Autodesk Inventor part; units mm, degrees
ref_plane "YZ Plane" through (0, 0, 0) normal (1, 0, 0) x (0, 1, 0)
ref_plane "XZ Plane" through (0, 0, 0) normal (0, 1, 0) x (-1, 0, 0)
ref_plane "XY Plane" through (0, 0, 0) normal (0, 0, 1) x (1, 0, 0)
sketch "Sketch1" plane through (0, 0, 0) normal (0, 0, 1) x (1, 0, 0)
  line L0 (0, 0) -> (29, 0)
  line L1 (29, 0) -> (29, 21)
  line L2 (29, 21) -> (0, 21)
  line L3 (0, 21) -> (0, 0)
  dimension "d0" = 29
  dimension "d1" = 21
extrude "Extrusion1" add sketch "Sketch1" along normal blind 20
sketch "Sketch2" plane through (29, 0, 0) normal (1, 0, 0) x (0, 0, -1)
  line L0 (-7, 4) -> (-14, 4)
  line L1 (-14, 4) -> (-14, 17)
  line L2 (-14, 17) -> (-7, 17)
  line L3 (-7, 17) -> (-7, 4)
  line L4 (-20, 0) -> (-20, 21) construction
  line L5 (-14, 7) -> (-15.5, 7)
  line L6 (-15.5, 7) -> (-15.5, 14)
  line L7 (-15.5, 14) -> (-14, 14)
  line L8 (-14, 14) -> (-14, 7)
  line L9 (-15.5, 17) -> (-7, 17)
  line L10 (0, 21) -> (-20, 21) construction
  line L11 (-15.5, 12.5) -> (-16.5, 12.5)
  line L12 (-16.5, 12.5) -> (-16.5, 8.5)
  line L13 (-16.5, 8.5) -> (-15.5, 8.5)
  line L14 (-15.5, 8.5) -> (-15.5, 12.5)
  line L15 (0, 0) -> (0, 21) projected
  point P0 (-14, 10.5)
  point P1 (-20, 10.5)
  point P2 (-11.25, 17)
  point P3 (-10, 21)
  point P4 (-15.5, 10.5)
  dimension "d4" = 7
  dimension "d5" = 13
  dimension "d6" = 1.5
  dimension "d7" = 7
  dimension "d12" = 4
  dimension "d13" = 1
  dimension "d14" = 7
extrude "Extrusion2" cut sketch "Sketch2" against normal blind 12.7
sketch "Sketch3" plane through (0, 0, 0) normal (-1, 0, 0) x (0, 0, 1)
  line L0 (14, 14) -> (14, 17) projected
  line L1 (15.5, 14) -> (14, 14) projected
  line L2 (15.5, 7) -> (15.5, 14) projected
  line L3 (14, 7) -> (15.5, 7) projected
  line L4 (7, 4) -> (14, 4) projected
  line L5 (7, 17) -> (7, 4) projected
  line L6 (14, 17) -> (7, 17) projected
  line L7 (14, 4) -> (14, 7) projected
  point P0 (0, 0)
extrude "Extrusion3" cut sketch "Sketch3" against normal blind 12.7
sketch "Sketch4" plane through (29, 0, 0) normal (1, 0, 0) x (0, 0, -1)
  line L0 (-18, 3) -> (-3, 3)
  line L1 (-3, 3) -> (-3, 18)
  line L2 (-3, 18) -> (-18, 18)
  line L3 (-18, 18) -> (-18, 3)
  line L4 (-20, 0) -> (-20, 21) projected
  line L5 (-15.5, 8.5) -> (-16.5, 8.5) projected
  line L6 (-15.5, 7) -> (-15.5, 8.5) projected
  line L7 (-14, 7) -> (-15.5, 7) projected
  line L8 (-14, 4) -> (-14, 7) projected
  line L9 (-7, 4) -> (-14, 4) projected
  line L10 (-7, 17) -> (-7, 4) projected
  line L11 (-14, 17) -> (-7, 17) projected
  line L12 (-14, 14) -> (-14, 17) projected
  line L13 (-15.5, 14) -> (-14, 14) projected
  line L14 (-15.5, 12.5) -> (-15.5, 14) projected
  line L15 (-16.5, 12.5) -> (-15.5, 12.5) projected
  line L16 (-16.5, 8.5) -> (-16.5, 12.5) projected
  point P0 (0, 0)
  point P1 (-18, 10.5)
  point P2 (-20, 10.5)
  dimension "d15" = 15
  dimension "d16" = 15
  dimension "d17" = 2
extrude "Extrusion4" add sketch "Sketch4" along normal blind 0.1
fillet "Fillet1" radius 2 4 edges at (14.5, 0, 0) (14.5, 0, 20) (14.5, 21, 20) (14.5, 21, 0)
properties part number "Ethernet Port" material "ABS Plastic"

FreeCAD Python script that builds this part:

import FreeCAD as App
import Part
import Sketcher

V = App.Vector


def edges_at(feature, points):
    """Names of the edges that pass closest to the given points."""
    edges = feature.Shape.Edges
    near = lambda p: min(range(len(edges)), key=lambda i: edges[i].distToShape(Part.Vertex(*p))[0])
    return sorted({f"Edge{near(p) + 1}" for p in points})


def add_polygon(sketch, points):
    """Adds a closed chain of lines whose ends are joined by coincident constraints."""
    first, n = sketch.GeometryCount, len(points)
    for a, b in zip(points, points[1:] + points[:1]):
        sketch.addGeometry(Part.LineSegment(App.Vector(*a, 0), App.Vector(*b, 0)), False)
    for i in range(n):
        sketch.addConstraint(Sketcher.Constraint("Coincident", first + i, 2, first + (i + 1) % n, 1))

doc = App.newDocument("Part")
params = doc.addObject("Spreadsheet::Sheet", "Params")
for row, (alias, value) in enumerate([
    ("sketch1_width", "29 mm"),
    ("sketch1_height", "21 mm"),
    ("pad1_length", "20 mm"),
    ("sketch2_width", "13 mm"),
    ("sketch2_width2", "4 mm"),
    ("sketch2_height", "7 mm"),
    ("sketch2_height2", "1 mm"),
    ("sketch2_width3", "1.5 mm"),
    ("pocket1_length", "12.7 mm"),
    ("sketch3_width", "3 mm"),
    ("sketch3_width2", "13 mm"),
    ("sketch3_height", "1.5 mm"),
    ("pocket2_length", "12.7 mm"),
    ("sketch4_width", "15 mm"),
    ("sketch4_width2", "4 mm"),
    ("sketch4_width3", "3 mm"),
    ("sketch4_width4", "13 mm"),
    ("sketch4_height", "1 mm"),
    ("pad2_length", "0.1 mm"),
    ("fillet_radius", "2 mm"),
], start=1):
    params.set(f"A{row}", alias)
    params.set(f"B{row}", "=" + value)
    params.setAlias(f"B{row}", alias)

body = doc.addObject("PartDesign::Body", "Body")

# Sketch on XY plane
sketch1 = body.newObject("Sketcher::SketchObject", "Sketch")
sketch1.AttachmentSupport = (doc.getObject("XY_Plane"), [""])
sketch1.MapMode = "FlatFace"
add_polygon(sketch1, [(0, 21), (0, 0), (29, 0), (29, 21)])  # lines 0-3
sketch1.addConstraint([
    Sketcher.Constraint("Vertical", 0),
    Sketcher.Constraint("Horizontal", 1),
    Sketcher.Constraint("Vertical", 2),
    Sketcher.Constraint("Horizontal", 3),
    Sketcher.Constraint("Coincident", 0, 2, -1, 1),
    Sketcher.Constraint("DistanceX", 1, 1, 1, 2, 29.0),
    Sketcher.Constraint("DistanceY", 0, 2, 0, 1, 21.0),
])
sketch1.setExpression("Constraints[9]", "Params.sketch1_width")
sketch1.setExpression("Constraints[10]", "Params.sketch1_height")
pad1 = body.newObject("PartDesign::Pad", "Pad")
pad1.Profile = sketch1
pad1.setExpression("Length", "Params.pad1_length")

# Sketch on YZ plane
sketch2 = body.newObject("Sketcher::SketchObject", "Sketch001")
sketch2.AttachmentSupport = (doc.getObject("YZ_Plane"), [""])
sketch2.MapMode = "FlatFace"
sketch2.AttachmentOffset = App.Placement(V(0, 0, 29), App.Rotation())
add_polygon(sketch2, [(4, 14), (4, 7), (17, 7), (17, 14), (14, 14), (14, 15.5), (12.5, 15.5), (12.5, 16.5), (8.5, 16.5), (8.5, 15.5), (7, 15.5), (7, 14)])  # lines 0-11
sketch2.addConstraint([
    Sketcher.Constraint("Vertical", 0),
    Sketcher.Constraint("Horizontal", 1),
    Sketcher.Constraint("Vertical", 2),
    Sketcher.Constraint("Horizontal", 3),
    Sketcher.Constraint("Vertical", 4),
    Sketcher.Constraint("Horizontal", 5),
    Sketcher.Constraint("Vertical", 6),
    Sketcher.Constraint("Horizontal", 7),
    Sketcher.Constraint("Vertical", 8),
    Sketcher.Constraint("Horizontal", 9),
    Sketcher.Constraint("Vertical", 10),
    Sketcher.Constraint("Horizontal", 11),
    Sketcher.Constraint("Horizontal", 5, 2, 8, 2),
    Sketcher.Constraint("Horizontal", 3, 2, 10, 2),
    Sketcher.Constraint("Equal", 5, 9),
    Sketcher.Constraint("Equal", 3, 11),
    Sketcher.Constraint("Equal", 9, 4),
    Sketcher.Constraint("DistanceX", 1, 1, 1, 2, 13.0),
    Sketcher.Constraint("DistanceX", 7, 2, 7, 1, 4.0),
    Sketcher.Constraint("DistanceY", 0, 2, 0, 1, 7.0),
    Sketcher.Constraint("DistanceY", 6, 1, 6, 2, 1.0),
    Sketcher.Constraint("DistanceX", 5, 2, 5, 1, 1.5),
    Sketcher.Constraint("DistanceX", -1, 1, 0, 2, 4.0),
    Sketcher.Constraint("DistanceY", -1, 1, 0, 2, 7.0),
])
sketch2.setExpression("Constraints[29]", "Params.sketch2_width")
sketch2.setExpression("Constraints[30]", "Params.sketch2_width2")
sketch2.setExpression("Constraints[31]", "Params.sketch2_height")
sketch2.setExpression("Constraints[32]", "Params.sketch2_height2")
sketch2.setExpression("Constraints[33]", "Params.sketch2_width3")
pocket1 = body.newObject("PartDesign::Pocket", "Pocket")
pocket1.Profile = sketch2
pocket1.setExpression("Length", "Params.pocket1_length")

# Sketch on YZ plane
sketch3 = body.newObject("Sketcher::SketchObject", "Sketch002")
sketch3.AttachmentSupport = (doc.getObject("YZ_Plane"), [""])
sketch3.MapMode = "FlatFace"
add_polygon(sketch3, [(14, 15.5), (14, 14), (17, 14), (17, 7), (4, 7), (4, 14), (7, 14), (7, 15.5)])  # lines 0-7
sketch3.addConstraint([
    Sketcher.Constraint("Vertical", 0),
    Sketcher.Constraint("Horizontal", 1),
    Sketcher.Constraint("Vertical", 2),
    Sketcher.Constraint("Horizontal", 3),
    Sketcher.Constraint("Vertical", 4),
    Sketcher.Constraint("Horizontal", 5),
    Sketcher.Constraint("Vertical", 6),
    Sketcher.Constraint("Horizontal", 7),
    Sketcher.Constraint("Horizontal", 1, 2, 4, 2),
    Sketcher.Constraint("Equal", 1, 5),
    Sketcher.Constraint("Equal", 7, 2),
    Sketcher.Constraint("DistanceX", 1, 1, 1, 2, 3.0),
    Sketcher.Constraint("DistanceX", 3, 2, 3, 1, 13.0),
    Sketcher.Constraint("DistanceY", 0, 2, 0, 1, 1.5),
    Sketcher.Constraint("DistanceX", -1, 1, 0, 2, 14.0),
    Sketcher.Constraint("DistanceY", -1, 1, 0, 2, 14.0),
])
sketch3.setExpression("Constraints[19]", "Params.sketch3_width")
sketch3.setExpression("Constraints[20]", "Params.sketch3_width2")
sketch3.setExpression("Constraints[21]", "Params.sketch3_height")
pocket2 = body.newObject("PartDesign::Pocket", "Pocket001")
pocket2.Profile = sketch3
pocket2.setExpression("Length", "Params.pocket2_length")
pocket2.Reversed = True

# Sketch on YZ plane
sketch4 = body.newObject("Sketcher::SketchObject", "Sketch003")
sketch4.AttachmentSupport = (doc.getObject("YZ_Plane"), [""])
sketch4.MapMode = "FlatFace"
sketch4.AttachmentOffset = App.Placement(V(0, 0, 29), App.Rotation())
add_polygon(sketch4, [(18, 18), (3, 18), (3, 3), (18, 3)])  # lines 0-3
add_polygon(sketch4, [(7, 15.5), (8.5, 15.5), (8.5, 16.5), (12.5, 16.5), (12.5, 15.5), (14, 15.5), (14, 14), (17, 14), (17, 7), (4, 7), (4, 14), (7, 14)])  # lines 4-15
sketch4.addConstraint([
    Sketcher.Constraint("Horizontal", 0),
    Sketcher.Constraint("Vertical", 1),
    Sketcher.Constraint("Horizontal", 2),
    Sketcher.Constraint("Vertical", 3),
    Sketcher.Constraint("Horizontal", 4),
    Sketcher.Constraint("Vertical", 5),
    Sketcher.Constraint("Horizontal", 6),
    Sketcher.Constraint("Vertical", 7),
    Sketcher.Constraint("Horizontal", 8),
    Sketcher.Constraint("Vertical", 9),
    Sketcher.Constraint("Horizontal", 10),
    Sketcher.Constraint("Vertical", 11),
    Sketcher.Constraint("Horizontal", 12),
    Sketcher.Constraint("Vertical", 13),
    Sketcher.Constraint("Horizontal", 14),
    Sketcher.Constraint("Vertical", 15),
    Sketcher.Constraint("Horizontal", 4, 2, 7, 2),
    Sketcher.Constraint("Horizontal", 10, 2, 13, 2),
    Sketcher.Constraint("Equal", 4, 8),
    Sketcher.Constraint("Equal", 10, 14),
    Sketcher.Constraint("Equal", 2, 1),
    Sketcher.Constraint("Equal", 8, 9),
    Sketcher.Constraint("DistanceX", 0, 2, 0, 1, 15.0),
    Sketcher.Constraint("DistanceX", 6, 1, 6, 2, 4.0),
    Sketcher.Constraint("DistanceX", 10, 1, 10, 2, 3.0),
    Sketcher.Constraint("DistanceX", 12, 2, 12, 1, 13.0),
    Sketcher.Constraint("DistanceY", 5, 1, 5, 2, 1.0),
    Sketcher.Constraint("DistanceY", 11, 2, 11, 1, 7.0),
    Sketcher.Constraint("DistanceX", -1, 1, 0, 2, 3.0),
    Sketcher.Constraint("DistanceY", -1, 1, 0, 2, 18.0),
    Sketcher.Constraint("DistanceX", -1, 1, 8, 2, 14.0),
    Sketcher.Constraint("DistanceY", -1, 1, 9, 2, 14.0),
])
sketch4.setExpression("Constraints[38]", "Params.sketch4_width")
sketch4.setExpression("Constraints[39]", "Params.sketch4_width2")
sketch4.setExpression("Constraints[40]", "Params.sketch4_width3")
sketch4.setExpression("Constraints[41]", "Params.sketch4_width4")
sketch4.setExpression("Constraints[42]", "Params.sketch4_height")
pad2 = body.newObject("PartDesign::Pad", "Pad001")
pad2.Profile = sketch4
pad2.setExpression("Length", "Params.pad2_length")
doc.recompute()

fillet = body.newObject("PartDesign::Fillet", "Fillet")
fillet.Base = (pad2, edges_at(pad2, [
    (14.5, 0, 0),
    (14.5, 0, 20),
    (14.5, 21, 20),
    (14.5, 21, 0),
]))
fillet.setExpression("Radius", "Params.fillet_radius")

doc.recompute()
